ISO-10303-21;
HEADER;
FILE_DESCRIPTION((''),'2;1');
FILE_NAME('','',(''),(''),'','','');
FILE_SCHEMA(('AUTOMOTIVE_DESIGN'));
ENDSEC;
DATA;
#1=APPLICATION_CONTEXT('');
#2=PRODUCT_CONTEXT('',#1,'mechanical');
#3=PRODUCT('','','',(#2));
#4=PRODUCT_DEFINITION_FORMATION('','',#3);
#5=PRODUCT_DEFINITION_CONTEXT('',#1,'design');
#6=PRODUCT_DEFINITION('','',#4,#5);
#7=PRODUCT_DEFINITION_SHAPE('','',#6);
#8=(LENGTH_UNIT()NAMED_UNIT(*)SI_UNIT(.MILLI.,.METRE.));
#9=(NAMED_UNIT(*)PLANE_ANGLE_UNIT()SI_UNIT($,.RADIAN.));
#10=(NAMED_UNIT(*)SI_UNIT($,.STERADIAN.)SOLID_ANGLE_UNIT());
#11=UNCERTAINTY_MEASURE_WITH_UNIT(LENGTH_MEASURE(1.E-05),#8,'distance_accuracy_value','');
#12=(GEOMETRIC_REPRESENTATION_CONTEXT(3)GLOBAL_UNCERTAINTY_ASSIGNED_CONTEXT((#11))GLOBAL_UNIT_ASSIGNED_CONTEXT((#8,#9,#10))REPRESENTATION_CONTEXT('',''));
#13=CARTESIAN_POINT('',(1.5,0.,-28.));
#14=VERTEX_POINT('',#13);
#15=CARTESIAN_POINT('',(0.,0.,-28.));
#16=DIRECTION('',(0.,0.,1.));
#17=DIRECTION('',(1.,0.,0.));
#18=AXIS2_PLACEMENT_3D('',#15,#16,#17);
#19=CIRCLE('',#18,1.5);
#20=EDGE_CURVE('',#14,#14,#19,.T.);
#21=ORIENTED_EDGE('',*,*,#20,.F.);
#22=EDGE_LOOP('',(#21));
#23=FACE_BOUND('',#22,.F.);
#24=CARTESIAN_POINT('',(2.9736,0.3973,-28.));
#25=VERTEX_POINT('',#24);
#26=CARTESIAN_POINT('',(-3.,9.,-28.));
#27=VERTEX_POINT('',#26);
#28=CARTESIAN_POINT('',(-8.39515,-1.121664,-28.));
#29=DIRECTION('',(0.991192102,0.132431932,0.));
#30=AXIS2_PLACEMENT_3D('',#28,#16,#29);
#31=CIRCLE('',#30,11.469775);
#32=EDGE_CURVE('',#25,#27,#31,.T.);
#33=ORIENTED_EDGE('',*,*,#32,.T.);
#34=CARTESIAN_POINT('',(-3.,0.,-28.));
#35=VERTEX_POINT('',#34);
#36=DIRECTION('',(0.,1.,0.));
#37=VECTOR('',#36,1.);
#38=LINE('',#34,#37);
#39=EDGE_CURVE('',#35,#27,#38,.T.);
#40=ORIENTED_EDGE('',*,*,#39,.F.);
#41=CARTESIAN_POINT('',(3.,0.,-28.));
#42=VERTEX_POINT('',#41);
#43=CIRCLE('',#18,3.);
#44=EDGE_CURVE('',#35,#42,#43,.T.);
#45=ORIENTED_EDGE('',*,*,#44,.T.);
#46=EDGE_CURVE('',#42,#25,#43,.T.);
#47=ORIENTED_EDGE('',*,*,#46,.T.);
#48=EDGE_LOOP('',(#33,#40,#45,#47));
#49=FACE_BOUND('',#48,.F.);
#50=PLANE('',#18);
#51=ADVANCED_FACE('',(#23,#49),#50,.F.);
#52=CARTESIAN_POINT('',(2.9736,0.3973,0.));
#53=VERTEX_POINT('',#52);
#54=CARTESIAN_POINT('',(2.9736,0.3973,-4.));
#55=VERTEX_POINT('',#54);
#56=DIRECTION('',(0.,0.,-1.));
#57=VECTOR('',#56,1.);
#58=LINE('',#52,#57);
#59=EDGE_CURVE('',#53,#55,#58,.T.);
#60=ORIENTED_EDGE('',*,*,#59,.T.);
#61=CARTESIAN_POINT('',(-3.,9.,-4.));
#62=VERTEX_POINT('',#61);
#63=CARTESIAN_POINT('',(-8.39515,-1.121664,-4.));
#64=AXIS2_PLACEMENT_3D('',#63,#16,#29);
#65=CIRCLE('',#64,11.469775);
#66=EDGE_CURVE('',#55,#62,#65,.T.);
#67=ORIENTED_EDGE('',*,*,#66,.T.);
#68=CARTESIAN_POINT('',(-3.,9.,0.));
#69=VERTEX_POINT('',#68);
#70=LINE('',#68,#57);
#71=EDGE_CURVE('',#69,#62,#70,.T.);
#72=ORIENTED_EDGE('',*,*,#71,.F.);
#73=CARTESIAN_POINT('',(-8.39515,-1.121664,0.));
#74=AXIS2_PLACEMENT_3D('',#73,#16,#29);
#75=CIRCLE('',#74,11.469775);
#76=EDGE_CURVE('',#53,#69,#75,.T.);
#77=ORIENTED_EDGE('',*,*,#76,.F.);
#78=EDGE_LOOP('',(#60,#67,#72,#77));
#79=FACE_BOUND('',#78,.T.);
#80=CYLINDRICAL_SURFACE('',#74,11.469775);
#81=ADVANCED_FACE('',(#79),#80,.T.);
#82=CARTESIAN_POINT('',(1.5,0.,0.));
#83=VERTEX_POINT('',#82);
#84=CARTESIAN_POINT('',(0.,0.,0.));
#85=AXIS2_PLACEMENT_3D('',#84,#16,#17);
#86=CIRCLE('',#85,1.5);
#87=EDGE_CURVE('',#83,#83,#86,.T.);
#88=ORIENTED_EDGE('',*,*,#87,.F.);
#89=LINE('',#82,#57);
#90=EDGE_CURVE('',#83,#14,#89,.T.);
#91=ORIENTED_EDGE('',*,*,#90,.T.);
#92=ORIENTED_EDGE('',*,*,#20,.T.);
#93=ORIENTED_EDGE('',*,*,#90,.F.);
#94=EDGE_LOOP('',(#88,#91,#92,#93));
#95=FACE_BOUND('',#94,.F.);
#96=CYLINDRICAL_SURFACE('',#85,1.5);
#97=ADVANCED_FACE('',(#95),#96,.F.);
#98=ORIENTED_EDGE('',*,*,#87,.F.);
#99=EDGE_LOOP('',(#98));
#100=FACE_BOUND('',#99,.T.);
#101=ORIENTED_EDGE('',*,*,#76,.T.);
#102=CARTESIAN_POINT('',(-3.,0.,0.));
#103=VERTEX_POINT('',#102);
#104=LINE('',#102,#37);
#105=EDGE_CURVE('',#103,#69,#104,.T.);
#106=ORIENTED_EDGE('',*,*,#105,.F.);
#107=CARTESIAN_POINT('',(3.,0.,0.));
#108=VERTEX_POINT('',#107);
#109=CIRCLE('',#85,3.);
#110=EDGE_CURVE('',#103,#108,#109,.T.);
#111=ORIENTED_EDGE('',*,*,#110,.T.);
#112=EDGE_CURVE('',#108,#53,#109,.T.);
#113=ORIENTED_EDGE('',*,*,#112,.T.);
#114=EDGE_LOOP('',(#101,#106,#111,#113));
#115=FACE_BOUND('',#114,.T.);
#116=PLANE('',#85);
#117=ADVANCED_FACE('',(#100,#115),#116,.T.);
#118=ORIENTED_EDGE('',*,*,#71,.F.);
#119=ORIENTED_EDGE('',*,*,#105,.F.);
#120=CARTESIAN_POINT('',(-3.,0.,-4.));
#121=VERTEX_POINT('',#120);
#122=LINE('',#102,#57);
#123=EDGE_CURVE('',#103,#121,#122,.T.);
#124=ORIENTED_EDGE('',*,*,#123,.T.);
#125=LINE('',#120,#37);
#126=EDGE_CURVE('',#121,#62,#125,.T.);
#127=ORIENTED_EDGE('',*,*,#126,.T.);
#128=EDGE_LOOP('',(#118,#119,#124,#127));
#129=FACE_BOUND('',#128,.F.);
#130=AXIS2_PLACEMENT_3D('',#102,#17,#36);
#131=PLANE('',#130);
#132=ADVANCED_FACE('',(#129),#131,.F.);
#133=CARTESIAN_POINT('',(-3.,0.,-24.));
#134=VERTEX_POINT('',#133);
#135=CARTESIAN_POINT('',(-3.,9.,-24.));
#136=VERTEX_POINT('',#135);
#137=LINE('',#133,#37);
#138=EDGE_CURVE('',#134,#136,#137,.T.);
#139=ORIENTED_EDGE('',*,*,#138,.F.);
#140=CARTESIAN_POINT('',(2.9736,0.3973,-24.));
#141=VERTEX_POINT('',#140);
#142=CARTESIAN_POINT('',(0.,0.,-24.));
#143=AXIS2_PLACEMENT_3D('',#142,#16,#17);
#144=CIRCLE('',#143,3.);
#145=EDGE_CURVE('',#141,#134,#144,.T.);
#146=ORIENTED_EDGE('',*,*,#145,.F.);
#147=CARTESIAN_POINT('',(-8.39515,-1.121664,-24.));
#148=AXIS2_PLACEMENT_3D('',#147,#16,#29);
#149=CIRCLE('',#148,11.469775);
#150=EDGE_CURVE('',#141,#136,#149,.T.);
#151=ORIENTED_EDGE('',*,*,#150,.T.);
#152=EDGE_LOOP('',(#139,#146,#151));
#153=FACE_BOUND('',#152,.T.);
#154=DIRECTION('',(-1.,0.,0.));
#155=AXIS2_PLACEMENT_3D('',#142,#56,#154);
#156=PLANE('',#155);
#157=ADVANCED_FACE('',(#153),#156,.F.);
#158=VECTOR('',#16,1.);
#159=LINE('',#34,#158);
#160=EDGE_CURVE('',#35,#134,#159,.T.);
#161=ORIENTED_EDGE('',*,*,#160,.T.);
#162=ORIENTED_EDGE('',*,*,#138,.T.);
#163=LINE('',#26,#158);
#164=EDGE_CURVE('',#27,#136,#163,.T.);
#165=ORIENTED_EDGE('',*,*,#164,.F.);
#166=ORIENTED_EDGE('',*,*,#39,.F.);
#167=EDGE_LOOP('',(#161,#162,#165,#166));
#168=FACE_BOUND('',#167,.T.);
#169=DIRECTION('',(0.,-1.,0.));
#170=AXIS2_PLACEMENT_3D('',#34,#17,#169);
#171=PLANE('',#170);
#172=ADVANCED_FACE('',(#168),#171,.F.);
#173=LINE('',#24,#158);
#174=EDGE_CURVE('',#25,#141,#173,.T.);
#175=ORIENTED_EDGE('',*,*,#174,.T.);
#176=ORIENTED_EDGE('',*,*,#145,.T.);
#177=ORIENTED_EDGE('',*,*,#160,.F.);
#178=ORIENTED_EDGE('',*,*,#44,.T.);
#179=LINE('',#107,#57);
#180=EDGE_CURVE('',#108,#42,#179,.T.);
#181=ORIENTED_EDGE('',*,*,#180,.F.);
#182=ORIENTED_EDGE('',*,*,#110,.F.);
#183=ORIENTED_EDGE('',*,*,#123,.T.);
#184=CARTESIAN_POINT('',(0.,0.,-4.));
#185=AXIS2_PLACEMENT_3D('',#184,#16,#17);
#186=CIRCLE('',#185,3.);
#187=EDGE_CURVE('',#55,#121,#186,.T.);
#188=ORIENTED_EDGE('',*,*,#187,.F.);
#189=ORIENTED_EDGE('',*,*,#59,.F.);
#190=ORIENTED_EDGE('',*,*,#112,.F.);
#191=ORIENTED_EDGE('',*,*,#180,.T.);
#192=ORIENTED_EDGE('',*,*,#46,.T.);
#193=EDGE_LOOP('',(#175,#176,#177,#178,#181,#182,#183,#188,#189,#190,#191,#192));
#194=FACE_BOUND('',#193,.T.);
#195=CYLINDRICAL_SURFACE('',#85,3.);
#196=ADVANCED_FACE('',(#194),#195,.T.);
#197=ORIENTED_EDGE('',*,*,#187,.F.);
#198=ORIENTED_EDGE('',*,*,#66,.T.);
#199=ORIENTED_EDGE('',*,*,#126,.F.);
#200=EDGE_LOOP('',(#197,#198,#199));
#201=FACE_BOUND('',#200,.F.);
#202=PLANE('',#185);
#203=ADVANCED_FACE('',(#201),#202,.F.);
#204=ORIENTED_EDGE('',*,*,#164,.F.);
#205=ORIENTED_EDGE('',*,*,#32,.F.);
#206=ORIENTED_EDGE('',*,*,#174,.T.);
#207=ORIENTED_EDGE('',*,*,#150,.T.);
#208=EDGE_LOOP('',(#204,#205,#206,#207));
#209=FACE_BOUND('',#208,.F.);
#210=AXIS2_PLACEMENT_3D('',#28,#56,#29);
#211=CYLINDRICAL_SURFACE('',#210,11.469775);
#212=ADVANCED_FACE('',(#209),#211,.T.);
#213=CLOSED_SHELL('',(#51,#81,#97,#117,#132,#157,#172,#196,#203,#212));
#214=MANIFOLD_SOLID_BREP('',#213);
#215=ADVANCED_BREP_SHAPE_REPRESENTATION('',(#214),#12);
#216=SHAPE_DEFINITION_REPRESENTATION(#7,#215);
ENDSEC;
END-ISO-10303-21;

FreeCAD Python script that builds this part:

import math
import FreeCAD as App
import Part
import Sketcher

V = App.Vector

doc = App.newDocument("Part")
body = doc.addObject("PartDesign::Body", "Body")

# Sketch on XY plane
sketch1 = doc.addObject("Sketcher::SketchObject", "Sketch")
body.addObject(sketch1)
sketch1.AttachmentSupport = (doc.XY_Plane, [""])
sketch1.MapMode = "FlatFace"
sketch1.addGeometry(Part.Circle(V(0, 0, 0), V(0, 0, 1), 3), False)
sketch1.addGeometry(Part.Circle(V(0, 0, 0), V(0, 0, 1), 1.5), False)
sketch1.addConstraint(Sketcher.Constraint("Coincident", 0, 3, -1, 1))
sketch1.addConstraint(Sketcher.Constraint("Coincident", 1, 3, -1, 1))
sketch1.addConstraint(Sketcher.Constraint("Diameter", 0, 6.0))
sketch1.addConstraint(Sketcher.Constraint("Diameter", 1, 3.0))
pad1 = doc.addObject("PartDesign::Pad", "Pad")
body.addObject(pad1)
pad1.Profile = sketch1
pad1.Length = 28
pad1.Reversed = True

# Sketch on XY plane
sketch2 = doc.addObject("Sketcher::SketchObject", "Sketch001")
body.addObject(sketch2)
sketch2.AttachmentSupport = (doc.XY_Plane, [""])
sketch2.MapMode = "FlatFace"
sketch2.addGeometry(Part.ArcOfCircle(Part.Circle(V(0, 0, 0), V(0, 0, 1), 3), math.radians(8), math.radians(180)), False)
sketch2.addGeometry(Part.ArcOfCircle(Part.Circle(V(-8.4, -1.1, 0), V(0, 0, 1), 11.5), math.radians(8), math.radians(62)), False)
sketch2.addGeometry(Part.LineSegment(V(-3, 9, 0), V(-3, 0, 0)), False)
sketch2.addConstraint(Sketcher.Constraint("Tangent", 0, 1, 1, 1))
sketch2.addConstraint(Sketcher.Constraint("Coincident", 1, 2, 2, 1))
sketch2.addConstraint(Sketcher.Constraint("Tangent", 2, 2, 0, 2))
sketch2.addConstraint(Sketcher.Constraint("Vertical", 2))
sketch2.addConstraint(Sketcher.Constraint("Coincident", 0, 3, -1, 1))
sketch2.addConstraint(Sketcher.Constraint("Radius", 0, 3.0))
sketch2.addConstraint(Sketcher.Constraint("DistanceY", 2, 2, 2, 1, 9.0))
sketch2.addConstraint(Sketcher.Constraint("Radius", 1, 11.4701))
pad2 = doc.addObject("PartDesign::Pad", "Pad001")
body.addObject(pad2)
pad2.Profile = sketch2
pad2.Length = 4
pad2.Reversed = True
doc.recompute()

datumplane = doc.addObject("PartDesign::Plane", "DatumPlane")
body.addObject(datumplane)
datumplane.AttachmentSupport = (doc.XY_Plane, [""])
datumplane.MapMode = "FlatFace"
datumplane.AttachmentOffset = App.Placement(V(0, 0, -14), App.Rotation())
mirrored = doc.addObject("PartDesign::Mirrored", "Mirrored")
body.addObject(mirrored)
mirrored.Originals = [pad2]
mirrored.MirrorPlane = (datumplane, [""])
body.Tip = mirrored

doc.recompute()
